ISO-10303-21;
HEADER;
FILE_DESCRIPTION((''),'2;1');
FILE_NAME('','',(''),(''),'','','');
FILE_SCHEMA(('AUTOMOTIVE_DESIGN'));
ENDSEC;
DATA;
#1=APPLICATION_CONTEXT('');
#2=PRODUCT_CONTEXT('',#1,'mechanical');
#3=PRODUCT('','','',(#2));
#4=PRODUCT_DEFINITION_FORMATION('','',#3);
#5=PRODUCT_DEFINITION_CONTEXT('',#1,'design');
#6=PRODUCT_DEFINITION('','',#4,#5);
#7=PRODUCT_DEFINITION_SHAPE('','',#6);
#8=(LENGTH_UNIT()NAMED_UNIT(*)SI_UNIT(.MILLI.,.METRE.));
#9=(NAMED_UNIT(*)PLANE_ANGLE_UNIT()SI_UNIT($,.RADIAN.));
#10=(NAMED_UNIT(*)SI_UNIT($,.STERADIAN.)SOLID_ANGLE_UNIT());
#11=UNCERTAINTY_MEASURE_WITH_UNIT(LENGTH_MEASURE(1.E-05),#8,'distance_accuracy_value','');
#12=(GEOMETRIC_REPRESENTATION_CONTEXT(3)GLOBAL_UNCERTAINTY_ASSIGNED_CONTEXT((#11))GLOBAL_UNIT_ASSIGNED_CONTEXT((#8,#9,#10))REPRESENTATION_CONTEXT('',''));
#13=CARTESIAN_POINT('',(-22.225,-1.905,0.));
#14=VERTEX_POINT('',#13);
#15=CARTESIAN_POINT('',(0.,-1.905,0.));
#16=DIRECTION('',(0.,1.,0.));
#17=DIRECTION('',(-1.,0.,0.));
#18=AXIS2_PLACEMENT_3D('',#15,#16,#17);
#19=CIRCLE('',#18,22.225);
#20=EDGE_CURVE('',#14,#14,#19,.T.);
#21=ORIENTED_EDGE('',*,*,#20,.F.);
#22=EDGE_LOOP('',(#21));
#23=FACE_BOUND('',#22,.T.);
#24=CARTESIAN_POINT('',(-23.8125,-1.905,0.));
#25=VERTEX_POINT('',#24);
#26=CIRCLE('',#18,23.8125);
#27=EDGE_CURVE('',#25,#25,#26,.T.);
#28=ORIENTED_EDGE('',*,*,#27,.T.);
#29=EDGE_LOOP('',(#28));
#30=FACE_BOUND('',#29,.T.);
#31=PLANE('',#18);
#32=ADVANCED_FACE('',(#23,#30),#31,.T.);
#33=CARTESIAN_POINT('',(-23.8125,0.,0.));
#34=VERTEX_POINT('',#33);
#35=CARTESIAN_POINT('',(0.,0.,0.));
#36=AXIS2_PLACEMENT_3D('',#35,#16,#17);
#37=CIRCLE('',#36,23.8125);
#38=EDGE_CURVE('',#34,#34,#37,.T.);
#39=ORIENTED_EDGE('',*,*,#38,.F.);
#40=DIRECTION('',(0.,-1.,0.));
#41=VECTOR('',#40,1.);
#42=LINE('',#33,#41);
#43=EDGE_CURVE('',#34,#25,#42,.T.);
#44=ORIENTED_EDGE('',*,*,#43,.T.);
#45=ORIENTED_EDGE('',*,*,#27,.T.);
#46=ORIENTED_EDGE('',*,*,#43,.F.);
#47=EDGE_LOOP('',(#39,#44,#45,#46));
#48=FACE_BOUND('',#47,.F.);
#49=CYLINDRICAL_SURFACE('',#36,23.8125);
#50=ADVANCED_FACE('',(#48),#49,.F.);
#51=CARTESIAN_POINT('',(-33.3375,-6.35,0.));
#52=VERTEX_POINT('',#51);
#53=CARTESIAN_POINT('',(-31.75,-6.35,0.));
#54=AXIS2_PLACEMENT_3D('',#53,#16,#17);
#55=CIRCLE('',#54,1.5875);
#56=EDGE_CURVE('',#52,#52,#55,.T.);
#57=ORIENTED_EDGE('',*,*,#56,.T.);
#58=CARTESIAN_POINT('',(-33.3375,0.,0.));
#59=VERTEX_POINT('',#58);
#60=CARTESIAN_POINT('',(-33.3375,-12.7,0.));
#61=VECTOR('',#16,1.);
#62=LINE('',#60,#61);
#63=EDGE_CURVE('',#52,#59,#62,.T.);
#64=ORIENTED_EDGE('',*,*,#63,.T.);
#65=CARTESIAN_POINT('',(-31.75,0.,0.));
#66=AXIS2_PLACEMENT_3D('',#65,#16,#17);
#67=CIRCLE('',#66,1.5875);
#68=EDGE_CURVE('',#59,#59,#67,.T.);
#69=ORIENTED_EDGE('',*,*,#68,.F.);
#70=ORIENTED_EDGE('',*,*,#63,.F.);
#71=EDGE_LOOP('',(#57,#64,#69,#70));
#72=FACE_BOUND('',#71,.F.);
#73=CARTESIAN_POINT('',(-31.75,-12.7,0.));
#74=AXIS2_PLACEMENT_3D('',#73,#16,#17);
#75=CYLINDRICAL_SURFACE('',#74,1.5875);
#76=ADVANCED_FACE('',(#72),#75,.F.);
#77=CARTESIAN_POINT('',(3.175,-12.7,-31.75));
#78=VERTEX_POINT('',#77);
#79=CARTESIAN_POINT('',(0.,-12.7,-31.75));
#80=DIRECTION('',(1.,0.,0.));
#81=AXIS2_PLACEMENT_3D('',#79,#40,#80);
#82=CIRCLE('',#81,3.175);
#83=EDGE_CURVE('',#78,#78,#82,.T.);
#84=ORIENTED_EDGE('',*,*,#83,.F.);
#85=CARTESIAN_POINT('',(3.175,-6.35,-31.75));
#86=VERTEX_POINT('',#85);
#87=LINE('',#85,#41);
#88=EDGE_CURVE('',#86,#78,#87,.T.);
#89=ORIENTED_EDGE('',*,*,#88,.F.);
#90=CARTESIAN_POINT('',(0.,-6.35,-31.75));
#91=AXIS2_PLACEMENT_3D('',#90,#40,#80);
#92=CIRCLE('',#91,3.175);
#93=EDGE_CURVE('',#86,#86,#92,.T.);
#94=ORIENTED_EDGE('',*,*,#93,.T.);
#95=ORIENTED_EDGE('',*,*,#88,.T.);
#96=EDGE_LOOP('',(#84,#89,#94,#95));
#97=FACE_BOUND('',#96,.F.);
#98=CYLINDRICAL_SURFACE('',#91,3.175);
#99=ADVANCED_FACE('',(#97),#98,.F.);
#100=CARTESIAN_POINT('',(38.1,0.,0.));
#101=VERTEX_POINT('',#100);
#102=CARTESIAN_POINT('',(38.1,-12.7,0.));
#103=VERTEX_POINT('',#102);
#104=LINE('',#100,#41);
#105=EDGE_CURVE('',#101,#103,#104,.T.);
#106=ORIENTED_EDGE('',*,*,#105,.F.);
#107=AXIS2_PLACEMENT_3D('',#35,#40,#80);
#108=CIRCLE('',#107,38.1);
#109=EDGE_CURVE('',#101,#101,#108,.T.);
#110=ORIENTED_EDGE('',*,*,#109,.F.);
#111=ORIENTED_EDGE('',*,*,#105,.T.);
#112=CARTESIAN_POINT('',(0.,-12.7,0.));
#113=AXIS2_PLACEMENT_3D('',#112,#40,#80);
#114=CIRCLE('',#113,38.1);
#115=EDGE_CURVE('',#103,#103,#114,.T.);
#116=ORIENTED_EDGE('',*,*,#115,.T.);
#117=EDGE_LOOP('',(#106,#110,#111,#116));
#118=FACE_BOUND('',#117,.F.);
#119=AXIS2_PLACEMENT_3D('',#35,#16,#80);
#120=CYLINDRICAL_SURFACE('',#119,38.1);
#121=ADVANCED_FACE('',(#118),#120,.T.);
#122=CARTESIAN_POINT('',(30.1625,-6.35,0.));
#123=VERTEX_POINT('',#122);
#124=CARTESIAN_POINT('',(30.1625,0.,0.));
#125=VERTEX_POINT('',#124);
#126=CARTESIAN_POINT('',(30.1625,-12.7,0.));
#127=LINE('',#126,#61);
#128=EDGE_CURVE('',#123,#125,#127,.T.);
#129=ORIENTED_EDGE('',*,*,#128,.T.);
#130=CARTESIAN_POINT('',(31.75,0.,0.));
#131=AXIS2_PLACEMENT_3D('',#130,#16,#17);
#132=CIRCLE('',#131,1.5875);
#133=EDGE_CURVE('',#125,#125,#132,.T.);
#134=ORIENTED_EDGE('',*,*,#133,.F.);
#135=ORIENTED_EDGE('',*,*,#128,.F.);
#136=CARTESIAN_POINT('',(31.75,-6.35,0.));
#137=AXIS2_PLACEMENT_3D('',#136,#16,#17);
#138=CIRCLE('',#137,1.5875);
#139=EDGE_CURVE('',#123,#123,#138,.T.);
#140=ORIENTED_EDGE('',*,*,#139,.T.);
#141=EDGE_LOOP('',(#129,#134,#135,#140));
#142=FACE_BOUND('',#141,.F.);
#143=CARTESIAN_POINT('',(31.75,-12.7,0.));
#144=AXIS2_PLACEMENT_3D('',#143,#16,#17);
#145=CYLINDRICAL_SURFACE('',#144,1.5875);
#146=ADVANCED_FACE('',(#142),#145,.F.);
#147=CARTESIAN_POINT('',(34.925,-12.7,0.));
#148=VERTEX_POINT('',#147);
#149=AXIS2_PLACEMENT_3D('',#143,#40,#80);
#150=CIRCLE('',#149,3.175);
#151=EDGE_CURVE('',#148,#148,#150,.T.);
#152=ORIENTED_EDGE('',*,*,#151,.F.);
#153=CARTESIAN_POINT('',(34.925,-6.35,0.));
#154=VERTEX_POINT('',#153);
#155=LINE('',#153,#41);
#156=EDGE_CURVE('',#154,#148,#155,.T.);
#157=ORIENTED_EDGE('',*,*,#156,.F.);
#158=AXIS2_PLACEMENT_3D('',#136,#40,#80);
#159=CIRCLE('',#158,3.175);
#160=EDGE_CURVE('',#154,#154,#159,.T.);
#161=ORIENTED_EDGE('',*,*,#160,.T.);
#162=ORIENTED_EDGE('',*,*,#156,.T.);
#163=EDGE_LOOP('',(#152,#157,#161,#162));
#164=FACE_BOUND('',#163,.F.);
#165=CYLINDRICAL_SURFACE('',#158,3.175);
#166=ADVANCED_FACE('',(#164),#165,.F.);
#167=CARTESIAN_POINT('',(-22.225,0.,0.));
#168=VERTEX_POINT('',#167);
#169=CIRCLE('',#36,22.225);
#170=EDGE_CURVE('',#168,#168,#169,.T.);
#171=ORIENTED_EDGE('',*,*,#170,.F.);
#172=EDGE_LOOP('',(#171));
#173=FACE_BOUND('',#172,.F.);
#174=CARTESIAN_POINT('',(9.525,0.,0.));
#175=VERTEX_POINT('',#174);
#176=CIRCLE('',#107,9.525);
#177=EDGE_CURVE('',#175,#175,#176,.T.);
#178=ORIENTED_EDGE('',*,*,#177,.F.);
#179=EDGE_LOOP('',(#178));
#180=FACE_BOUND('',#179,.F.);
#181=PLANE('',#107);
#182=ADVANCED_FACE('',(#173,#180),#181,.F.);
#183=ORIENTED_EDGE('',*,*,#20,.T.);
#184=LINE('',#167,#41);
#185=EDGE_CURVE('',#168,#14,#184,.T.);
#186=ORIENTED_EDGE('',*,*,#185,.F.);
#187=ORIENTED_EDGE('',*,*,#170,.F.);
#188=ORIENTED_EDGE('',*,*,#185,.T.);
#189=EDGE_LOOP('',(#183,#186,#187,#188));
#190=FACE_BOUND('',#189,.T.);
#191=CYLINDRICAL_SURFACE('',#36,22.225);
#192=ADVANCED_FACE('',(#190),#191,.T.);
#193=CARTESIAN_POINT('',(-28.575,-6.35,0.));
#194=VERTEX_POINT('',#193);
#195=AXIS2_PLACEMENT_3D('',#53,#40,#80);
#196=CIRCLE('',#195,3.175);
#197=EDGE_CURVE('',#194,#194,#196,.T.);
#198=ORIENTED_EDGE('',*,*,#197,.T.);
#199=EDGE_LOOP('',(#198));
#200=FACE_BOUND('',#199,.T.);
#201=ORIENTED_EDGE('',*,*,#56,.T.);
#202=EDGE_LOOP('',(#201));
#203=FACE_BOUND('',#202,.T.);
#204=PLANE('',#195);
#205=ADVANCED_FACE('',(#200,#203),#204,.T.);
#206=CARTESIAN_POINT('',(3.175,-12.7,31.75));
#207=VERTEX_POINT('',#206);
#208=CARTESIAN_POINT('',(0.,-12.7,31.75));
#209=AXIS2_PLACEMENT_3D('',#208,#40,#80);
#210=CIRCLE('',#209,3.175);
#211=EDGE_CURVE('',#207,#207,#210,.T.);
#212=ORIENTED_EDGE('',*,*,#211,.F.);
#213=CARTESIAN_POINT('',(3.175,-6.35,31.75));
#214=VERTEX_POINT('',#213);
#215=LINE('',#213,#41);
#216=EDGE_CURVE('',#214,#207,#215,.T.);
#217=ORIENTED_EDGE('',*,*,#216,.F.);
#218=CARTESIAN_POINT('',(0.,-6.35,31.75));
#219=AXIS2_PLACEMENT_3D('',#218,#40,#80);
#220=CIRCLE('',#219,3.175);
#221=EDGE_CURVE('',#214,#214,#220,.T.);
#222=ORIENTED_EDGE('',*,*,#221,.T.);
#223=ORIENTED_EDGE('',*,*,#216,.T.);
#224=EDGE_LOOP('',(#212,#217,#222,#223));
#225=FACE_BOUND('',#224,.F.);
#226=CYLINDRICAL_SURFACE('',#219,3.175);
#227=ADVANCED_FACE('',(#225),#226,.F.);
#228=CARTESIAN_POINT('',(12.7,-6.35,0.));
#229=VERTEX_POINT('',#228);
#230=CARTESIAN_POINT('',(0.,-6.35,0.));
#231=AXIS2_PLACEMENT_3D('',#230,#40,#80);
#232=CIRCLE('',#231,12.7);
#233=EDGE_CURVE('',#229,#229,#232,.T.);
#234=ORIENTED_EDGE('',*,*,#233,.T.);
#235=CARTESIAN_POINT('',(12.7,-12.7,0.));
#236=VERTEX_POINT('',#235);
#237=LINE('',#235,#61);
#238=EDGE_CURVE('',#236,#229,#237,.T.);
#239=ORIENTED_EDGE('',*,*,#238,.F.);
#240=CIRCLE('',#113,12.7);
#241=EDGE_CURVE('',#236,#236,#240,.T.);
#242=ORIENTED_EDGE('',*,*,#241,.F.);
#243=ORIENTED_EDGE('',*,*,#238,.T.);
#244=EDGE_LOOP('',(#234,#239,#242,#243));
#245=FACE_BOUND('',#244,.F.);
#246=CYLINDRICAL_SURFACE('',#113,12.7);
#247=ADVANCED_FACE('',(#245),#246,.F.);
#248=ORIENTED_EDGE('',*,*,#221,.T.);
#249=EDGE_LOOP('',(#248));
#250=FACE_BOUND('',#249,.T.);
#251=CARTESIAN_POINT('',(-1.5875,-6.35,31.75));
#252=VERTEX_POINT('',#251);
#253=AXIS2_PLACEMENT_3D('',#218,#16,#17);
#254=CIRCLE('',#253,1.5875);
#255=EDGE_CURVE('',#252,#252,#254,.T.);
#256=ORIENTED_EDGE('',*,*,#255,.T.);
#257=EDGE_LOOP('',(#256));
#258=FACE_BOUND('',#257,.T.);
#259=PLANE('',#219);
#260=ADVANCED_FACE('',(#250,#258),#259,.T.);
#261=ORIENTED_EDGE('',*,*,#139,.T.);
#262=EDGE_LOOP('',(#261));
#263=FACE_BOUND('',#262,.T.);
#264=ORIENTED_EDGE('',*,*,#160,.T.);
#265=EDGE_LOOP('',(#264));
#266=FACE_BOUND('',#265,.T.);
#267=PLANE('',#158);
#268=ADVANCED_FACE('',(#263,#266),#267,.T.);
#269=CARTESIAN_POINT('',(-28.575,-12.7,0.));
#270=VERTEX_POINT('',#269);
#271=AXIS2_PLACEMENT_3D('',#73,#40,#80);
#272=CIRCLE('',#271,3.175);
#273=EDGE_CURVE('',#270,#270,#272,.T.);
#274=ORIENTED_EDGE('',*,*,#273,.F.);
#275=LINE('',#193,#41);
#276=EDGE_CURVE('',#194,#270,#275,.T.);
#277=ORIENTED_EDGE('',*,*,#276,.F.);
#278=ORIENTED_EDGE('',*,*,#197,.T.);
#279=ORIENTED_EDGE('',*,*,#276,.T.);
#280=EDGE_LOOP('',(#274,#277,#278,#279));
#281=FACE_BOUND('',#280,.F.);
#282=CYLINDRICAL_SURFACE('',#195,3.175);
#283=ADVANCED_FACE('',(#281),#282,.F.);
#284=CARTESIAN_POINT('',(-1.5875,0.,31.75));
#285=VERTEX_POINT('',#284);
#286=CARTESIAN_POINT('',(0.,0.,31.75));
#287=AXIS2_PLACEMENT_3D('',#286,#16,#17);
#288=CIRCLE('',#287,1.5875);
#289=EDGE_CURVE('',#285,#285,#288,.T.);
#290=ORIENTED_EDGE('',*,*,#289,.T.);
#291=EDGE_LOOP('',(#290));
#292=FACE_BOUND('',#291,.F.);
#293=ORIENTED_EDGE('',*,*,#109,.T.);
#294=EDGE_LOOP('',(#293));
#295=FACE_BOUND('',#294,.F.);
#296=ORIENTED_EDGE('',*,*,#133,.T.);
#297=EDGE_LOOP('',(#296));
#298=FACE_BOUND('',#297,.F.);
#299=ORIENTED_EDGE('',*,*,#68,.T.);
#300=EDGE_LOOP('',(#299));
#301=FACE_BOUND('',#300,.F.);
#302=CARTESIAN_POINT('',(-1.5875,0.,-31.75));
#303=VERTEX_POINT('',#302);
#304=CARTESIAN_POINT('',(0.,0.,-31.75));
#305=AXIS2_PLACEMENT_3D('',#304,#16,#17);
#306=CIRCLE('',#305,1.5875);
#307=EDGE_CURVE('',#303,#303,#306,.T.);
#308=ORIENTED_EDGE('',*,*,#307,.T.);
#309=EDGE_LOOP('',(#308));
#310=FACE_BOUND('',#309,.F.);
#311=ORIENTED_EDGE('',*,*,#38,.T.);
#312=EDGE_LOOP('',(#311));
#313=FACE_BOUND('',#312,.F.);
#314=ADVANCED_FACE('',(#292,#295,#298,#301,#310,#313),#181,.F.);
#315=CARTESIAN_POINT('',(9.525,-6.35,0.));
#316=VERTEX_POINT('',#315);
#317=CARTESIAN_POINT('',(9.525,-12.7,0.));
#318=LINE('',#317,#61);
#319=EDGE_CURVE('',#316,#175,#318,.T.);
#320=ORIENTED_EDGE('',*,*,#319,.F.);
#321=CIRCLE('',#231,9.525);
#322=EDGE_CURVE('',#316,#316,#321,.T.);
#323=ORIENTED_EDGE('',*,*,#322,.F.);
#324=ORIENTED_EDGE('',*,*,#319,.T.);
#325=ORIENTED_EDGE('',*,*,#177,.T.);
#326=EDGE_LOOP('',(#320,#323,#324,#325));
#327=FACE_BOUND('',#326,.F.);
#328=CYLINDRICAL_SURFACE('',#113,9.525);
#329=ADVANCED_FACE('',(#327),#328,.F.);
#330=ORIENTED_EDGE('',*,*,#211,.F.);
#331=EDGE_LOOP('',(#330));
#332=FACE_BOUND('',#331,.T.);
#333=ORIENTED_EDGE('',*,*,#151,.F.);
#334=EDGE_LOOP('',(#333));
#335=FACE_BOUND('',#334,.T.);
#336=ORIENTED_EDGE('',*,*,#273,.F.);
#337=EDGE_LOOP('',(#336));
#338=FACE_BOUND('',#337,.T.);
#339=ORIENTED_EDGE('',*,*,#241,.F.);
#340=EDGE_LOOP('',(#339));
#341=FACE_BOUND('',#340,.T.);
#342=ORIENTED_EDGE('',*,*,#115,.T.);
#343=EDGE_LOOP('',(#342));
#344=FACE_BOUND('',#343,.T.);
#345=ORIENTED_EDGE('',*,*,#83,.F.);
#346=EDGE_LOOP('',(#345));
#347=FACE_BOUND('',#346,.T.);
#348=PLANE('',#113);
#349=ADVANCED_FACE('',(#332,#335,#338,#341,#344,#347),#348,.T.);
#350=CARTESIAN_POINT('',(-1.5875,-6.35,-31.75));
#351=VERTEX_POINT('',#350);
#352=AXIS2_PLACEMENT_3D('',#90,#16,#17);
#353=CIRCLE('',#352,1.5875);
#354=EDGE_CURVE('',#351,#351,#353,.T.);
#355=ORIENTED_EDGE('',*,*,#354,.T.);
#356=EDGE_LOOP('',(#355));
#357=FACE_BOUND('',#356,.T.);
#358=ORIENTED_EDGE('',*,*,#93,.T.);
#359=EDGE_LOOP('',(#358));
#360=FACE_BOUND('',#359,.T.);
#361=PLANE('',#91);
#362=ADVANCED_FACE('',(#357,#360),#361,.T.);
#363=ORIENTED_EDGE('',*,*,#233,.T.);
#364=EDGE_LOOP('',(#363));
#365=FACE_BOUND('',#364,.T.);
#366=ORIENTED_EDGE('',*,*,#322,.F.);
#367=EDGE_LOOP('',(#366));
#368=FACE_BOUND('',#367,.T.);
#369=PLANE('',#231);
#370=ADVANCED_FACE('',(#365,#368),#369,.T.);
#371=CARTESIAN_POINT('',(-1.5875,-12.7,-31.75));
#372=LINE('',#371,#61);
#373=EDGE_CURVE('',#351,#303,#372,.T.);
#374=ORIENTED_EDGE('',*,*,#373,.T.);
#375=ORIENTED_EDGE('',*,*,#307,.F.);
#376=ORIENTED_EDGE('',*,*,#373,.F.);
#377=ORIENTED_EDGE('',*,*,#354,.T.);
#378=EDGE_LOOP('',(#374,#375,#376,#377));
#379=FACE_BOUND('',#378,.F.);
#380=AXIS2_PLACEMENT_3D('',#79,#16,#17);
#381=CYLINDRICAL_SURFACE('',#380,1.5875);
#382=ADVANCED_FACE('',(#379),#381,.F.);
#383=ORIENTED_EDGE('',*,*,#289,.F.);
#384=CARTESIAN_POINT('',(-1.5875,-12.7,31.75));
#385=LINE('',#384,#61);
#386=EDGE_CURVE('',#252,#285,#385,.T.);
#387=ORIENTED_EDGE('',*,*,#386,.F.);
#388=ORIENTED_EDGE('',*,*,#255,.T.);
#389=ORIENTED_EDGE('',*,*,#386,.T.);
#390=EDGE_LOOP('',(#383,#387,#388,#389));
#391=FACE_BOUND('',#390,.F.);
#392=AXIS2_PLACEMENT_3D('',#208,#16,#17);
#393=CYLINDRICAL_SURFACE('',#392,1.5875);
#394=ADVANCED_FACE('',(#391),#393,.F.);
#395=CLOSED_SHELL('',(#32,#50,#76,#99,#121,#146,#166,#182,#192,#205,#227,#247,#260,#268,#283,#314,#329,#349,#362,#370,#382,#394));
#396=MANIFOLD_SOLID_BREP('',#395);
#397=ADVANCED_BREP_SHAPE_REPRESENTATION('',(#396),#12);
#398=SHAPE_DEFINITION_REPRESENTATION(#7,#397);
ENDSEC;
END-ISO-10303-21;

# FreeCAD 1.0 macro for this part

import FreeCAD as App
import Part
import Sketcher
from FreeCAD import Vector
Q = App.Units.Quantity

doc = App.newDocument("Part")
params = doc.addObject("Spreadsheet::Sheet", "Params")
for row, (alias, value) in enumerate([
    ("sketch1_diameter", "3 in"),
    ("pad1_length", "0.5 in"),
    ("sketch2_diameter", "0.75 in"),
    ("sketch3_diameter", "1 in"),
    ("pocket2_length", "0.25 in"),
    ("sketch4_diameter", "0.125 in"),
    ("hole_diameter", "0.125 in"),
    ("hole_cbore_diameter", "0.25 in"),
    ("hole_cbore_depth", "0.25 in"),
    ("sketch5_diameter", "1.75 in"),
    ("sketch5_diameter2", "1.875 in"),
    ("pocket3_length", "0.075 in"),
], start=1):
    params.set(f"A{row}", alias)
    params.set(f"B{row}", "=" + value)
    params.setAlias(f"B{row}", alias)

body = doc.addObject("PartDesign::Body", "Body")

# Sketch on XZ plane
sketch1 = body.newObject("Sketcher::SketchObject", "Sketch")
sketch1.AttachmentSupport = (doc.getObject("XZ_Plane"), [""])
sketch1.MapMode = "FlatFace"
sketch1.addGeometry(Part.Circle(Vector(0, 0, 0), Vector(0, 0, 1), 38), False)
sketch1.addConstraint([
    Sketcher.Constraint("Coincident", 0, 3, -1, 1),
    Sketcher.Constraint("Diameter", 0, Q("3 in")),
])
sketch1.setExpression("Constraints[1]", "Params.sketch1_diameter")
pad1 = body.newObject("PartDesign::Pad", "Pad")
pad1.Profile = sketch1
pad1.setExpression("Length", "Params.pad1_length")

# Sketch on XZ plane
sketch2 = body.newObject("Sketcher::SketchObject", "Sketch001")
sketch2.AttachmentSupport = (doc.getObject("XZ_Plane"), [""])
sketch2.MapMode = "FlatFace"
sketch2.AttachmentOffset = App.Placement(Vector(0, 0, 0.5 * 25.4), App.Rotation())
sketch2.addGeometry(Part.Circle(Vector(0, 0, 0), Vector(0, 0, 1), 10), False)
sketch2.addConstraint([
    Sketcher.Constraint("Coincident", 0, 3, -1, 1),
    Sketcher.Constraint("Diameter", 0, Q("0.75 in")),
])
sketch2.setExpression("Constraints[1]", "Params.sketch2_diameter")
pocket1 = body.newObject("PartDesign::Pocket", "Pocket")
pocket1.Profile = sketch2
pocket1.Type = "ThroughAll"

# Sketch on XZ plane
sketch3 = body.newObject("Sketcher::SketchObject", "Sketch002")
sketch3.AttachmentSupport = (doc.getObject("XZ_Plane"), [""])
sketch3.MapMode = "FlatFace"
sketch3.AttachmentOffset = App.Placement(Vector(0, 0, 0.5 * 25.4), App.Rotation())
sketch3.addGeometry(Part.Circle(Vector(0, 0, 0), Vector(0, 0, 1), 13), False)
sketch3.addConstraint([
    Sketcher.Constraint("Coincident", 0, 3, -1, 1),
    Sketcher.Constraint("Diameter", 0, Q("1 in")),
])
sketch3.setExpression("Constraints[1]", "Params.sketch3_diameter")
pocket2 = body.newObject("PartDesign::Pocket", "Pocket001")
pocket2.Profile = sketch3
pocket2.setExpression("Length", "Params.pocket2_length")

# Sketch on XZ plane
sketch4 = body.newObject("Sketcher::SketchObject", "Sketch003")
sketch4.AttachmentSupport = (doc.getObject("XZ_Plane"), [""])
sketch4.MapMode = "FlatFace"
sketch4.AttachmentOffset = App.Placement(Vector(0, 0, 0.5 * 25.4), App.Rotation())
sketch4.addGeometry([
    Part.Circle(Vector(0, 31.8, 0), Vector(0, 0, 1), 1.6),
    Part.Circle(Vector(31.8, 0, 0), Vector(0, 0, 1), 1.6),
    Part.Circle(Vector(0, -31.8, 0), Vector(0, 0, 1), 1.6),
    Part.Circle(Vector(-31.8, 0, 0), Vector(0, 0, 1), 1.6),
], False)
sketch4.addConstraint([
    Sketcher.Constraint("Equal", 0, 1),
    Sketcher.Constraint("Equal", 1, 2),
    Sketcher.Constraint("Equal", 2, 3),
    Sketcher.Constraint("Symmetric", 0, 3, 2, 3, -1, 1),
    Sketcher.Constraint("Symmetric", 1, 3, 3, 3, -1, 1),
    Sketcher.Constraint("PointOnObject", 0, 3, -2),
    Sketcher.Constraint("PointOnObject", 1, 3, -1),
    Sketcher.Constraint("Diameter", 0, Q("0.125 in")),
    Sketcher.Constraint("DistanceY", 2, 3, 0, 3, Q("2.5 in")),
    Sketcher.Constraint("DistanceX", 3, 3, 1, 3, Q("2.5 in")),
])
sketch4.setExpression("Constraints[7]", "Params.sketch4_diameter")
doc.recompute()
hole = body.newObject("PartDesign::Hole", "Hole")
hole.Profile = sketch4
hole.ThreadType = "None"
hole.setExpression("Diameter", "Params.hole_diameter")
hole.DepthType = "ThroughAll"
hole.HoleCutType = "Counterbore"
hole.setExpression("HoleCutDiameter", "Params.hole_cbore_diameter")
hole.setExpression("HoleCutDepth", "Params.hole_cbore_depth")

# Sketch on XZ plane
sketch5 = body.newObject("Sketcher::SketchObject", "Sketch004")
sketch5.AttachmentSupport = (doc.getObject("XZ_Plane"), [""])
sketch5.MapMode = "FlatFace"
sketch5.addGeometry([
    Part.Circle(Vector(0, 0, 0), Vector(0, 0, 1), 24),
    Part.Circle(Vector(0, 0, 0), Vector(0, 0, 1), 22),
], False)
sketch5.addConstraint([
    Sketcher.Constraint("Coincident", 0, 3, -1, 1),
    Sketcher.Constraint("Coincident", 1, 3, -1, 1),
    Sketcher.Constraint("Diameter", 1, Q("1.75 in")),
    Sketcher.Constraint("Diameter", 0, Q("1.875 in")),
])
sketch5.setExpression("Constraints[2]", "Params.sketch5_diameter")
sketch5.setExpression("Constraints[3]", "Params.sketch5_diameter2")
pocket3 = body.newObject("PartDesign::Pocket", "Pocket002")
pocket3.Profile = sketch5
pocket3.setExpression("Length", "Params.pocket3_length")
pocket3.Reversed = True

doc.recompute()
